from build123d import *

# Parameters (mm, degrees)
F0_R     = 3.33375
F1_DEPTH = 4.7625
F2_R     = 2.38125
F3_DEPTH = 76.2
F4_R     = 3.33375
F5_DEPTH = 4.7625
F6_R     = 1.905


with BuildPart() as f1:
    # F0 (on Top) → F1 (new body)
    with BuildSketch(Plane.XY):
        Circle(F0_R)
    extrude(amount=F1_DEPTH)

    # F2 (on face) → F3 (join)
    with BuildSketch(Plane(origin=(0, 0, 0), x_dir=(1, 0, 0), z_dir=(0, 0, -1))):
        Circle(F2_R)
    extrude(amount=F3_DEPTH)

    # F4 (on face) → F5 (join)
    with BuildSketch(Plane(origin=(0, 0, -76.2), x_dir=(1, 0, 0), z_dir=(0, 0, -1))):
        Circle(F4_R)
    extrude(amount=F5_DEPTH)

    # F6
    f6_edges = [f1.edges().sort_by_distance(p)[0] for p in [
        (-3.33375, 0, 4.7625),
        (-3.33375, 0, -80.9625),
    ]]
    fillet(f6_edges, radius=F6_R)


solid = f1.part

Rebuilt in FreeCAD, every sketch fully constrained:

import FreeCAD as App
import Part
import Sketcher

V = App.Vector
Q = App.Units.Quantity


def edges_at(feature, points):
    """Names of the edges that pass closest to the given points."""
    edges = feature.Shape.Edges
    near = lambda p: min(range(len(edges)), key=lambda i: edges[i].distToShape(Part.Vertex(*p))[0])
    return sorted({f"Edge{near(p) + 1}" for p in points})

doc = App.newDocument("Part")
body = doc.addObject("PartDesign::Body", "Body")

sketch1 = body.newObject("Sketcher::SketchObject", "Sketch")
sketch1.AttachmentSupport = (doc.getObject("XY_Plane"), [""])
sketch1.MapMode = "FlatFace"
sketch1.addGeometry(Part.Circle(V(0, 0, 0), V(0, 0, 1), 3.3), False)
sketch1.addConstraint([
    Sketcher.Constraint("Coincident", 0, 3, -1, 1),
    Sketcher.Constraint("Diameter", 0, Q("0.2625 in")),
])
pad1 = body.newObject("PartDesign::Pad", "Pad")
pad1.Profile = sketch1
pad1.Length = Q("0.1875 in")

sketch2 = body.newObject("Sketcher::SketchObject", "Sketch001")
sketch2.AttachmentSupport = (doc.getObject("XY_Plane"), [""])
sketch2.MapMode = "FlatFace"
sketch2.addGeometry(Part.Circle(V(0, 0, 0), V(0, 0, 1), 2.4), False)
sketch2.addConstraint([
    Sketcher.Constraint("Coincident", 0, 3, -1, 1),
    Sketcher.Constraint("Diameter", 0, Q("0.1875 in")),
])
pad2 = body.newObject("PartDesign::Pad", "Pad001")
pad2.Profile = sketch2
pad2.Length = Q("3 in")
pad2.Reversed = True

sketch3 = body.newObject("Sketcher::SketchObject", "Sketch002")
sketch3.AttachmentSupport = (doc.getObject("XY_Plane"), [""])
sketch3.MapMode = "FlatFace"
sketch3.AttachmentOffset = App.Placement(V(0, 0, -3 * 25.4), App.Rotation())
sketch3.addGeometry(Part.Circle(V(0, 0, 0), V(0, 0, 1), 3.3), False)
sketch3.addConstraint([
    Sketcher.Constraint("Coincident", 0, 3, -1, 1),
    Sketcher.Constraint("Diameter", 0, Q("0.2625 in")),
])
pad3 = body.newObject("PartDesign::Pad", "Pad002")
pad3.Profile = sketch3
pad3.Length = Q("0.1875 in")
pad3.Reversed = True
doc.recompute()

fillet = body.newObject("PartDesign::Fillet", "Fillet")
fillet.Base = (pad3, edges_at(pad3, [(-3.334, 0, 4.763), (-3.334, 0, -80.963)]))
fillet.Radius = Q("0.075 in")

doc.recompute()
